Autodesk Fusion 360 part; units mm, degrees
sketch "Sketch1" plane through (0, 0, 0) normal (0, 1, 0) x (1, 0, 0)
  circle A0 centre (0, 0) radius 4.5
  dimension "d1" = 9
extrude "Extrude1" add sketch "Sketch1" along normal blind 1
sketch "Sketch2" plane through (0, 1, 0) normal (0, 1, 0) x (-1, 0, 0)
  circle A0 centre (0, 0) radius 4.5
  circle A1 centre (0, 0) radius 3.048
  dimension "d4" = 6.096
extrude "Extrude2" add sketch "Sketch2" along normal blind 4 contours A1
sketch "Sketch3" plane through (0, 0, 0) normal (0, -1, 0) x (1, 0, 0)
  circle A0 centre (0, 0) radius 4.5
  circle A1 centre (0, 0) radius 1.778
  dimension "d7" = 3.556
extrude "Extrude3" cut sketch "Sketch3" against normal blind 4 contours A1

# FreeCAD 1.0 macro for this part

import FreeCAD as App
import Part
import Sketcher
from FreeCAD import Vector
Q = App.Units.Quantity

doc = App.newDocument("Part")
body = doc.addObject("PartDesign::Body", "Body")

# Sketch on XZ plane
sketch1 = body.newObject("Sketcher::SketchObject", "Sketch")
sketch1.AttachmentSupport = (doc.getObject("XZ_Plane"), [""])
sketch1.MapMode = "FlatFace"
sketch1.addGeometry(Part.Circle(Vector(0, 0, 0), Vector(0, 0, 1), 4.5), False)
sketch1.addConstraint(Sketcher.Constraint("Coincident", 0, 3, -1, 1))
sketch1.addConstraint(Sketcher.Constraint("Diameter", 0, Q("9 mm")))
pad1 = body.newObject("PartDesign::Pad", "Pad")
pad1.Profile = sketch1
pad1.Length = 1
pad1.Reversed = True

# Sketch on XZ plane
sketch2 = body.newObject("Sketcher::SketchObject", "Sketch001")
sketch2.AttachmentSupport = (doc.getObject("XZ_Plane"), [""])
sketch2.MapMode = "FlatFace"
sketch2.AttachmentOffset = App.Placement(Vector(0, 0, -1), App.Rotation())
sketch2.addGeometry(Part.Circle(Vector(0, 0, 0), Vector(0, 0, 1), 3), False)
sketch2.addConstraint(Sketcher.Constraint("Coincident", 0, 3, -1, 1))
sketch2.addConstraint(Sketcher.Constraint("Diameter", 0, Q("6.096 mm")))
pad2 = body.newObject("PartDesign::Pad", "Pad001")
pad2.Profile = sketch2
pad2.Length = 4
pad2.Reversed = True

# Sketch on XZ plane
sketch3 = body.newObject("Sketcher::SketchObject", "Sketch002")
sketch3.AttachmentSupport = (doc.getObject("XZ_Plane"), [""])
sketch3.MapMode = "FlatFace"
sketch3.addGeometry(Part.Circle(Vector(0, 0, 0), Vector(0, 0, 1), 1.8), False)
sketch3.addConstraint(Sketcher.Constraint("Coincident", 0, 3, -1, 1))
sketch3.addConstraint(Sketcher.Constraint("Diameter", 0, Q("3.556 mm")))
pocket1 = body.newObject("PartDesign::Pocket", "Pocket")
pocket1.Profile = sketch3
pocket1.Length = 4

doc.recompute()
